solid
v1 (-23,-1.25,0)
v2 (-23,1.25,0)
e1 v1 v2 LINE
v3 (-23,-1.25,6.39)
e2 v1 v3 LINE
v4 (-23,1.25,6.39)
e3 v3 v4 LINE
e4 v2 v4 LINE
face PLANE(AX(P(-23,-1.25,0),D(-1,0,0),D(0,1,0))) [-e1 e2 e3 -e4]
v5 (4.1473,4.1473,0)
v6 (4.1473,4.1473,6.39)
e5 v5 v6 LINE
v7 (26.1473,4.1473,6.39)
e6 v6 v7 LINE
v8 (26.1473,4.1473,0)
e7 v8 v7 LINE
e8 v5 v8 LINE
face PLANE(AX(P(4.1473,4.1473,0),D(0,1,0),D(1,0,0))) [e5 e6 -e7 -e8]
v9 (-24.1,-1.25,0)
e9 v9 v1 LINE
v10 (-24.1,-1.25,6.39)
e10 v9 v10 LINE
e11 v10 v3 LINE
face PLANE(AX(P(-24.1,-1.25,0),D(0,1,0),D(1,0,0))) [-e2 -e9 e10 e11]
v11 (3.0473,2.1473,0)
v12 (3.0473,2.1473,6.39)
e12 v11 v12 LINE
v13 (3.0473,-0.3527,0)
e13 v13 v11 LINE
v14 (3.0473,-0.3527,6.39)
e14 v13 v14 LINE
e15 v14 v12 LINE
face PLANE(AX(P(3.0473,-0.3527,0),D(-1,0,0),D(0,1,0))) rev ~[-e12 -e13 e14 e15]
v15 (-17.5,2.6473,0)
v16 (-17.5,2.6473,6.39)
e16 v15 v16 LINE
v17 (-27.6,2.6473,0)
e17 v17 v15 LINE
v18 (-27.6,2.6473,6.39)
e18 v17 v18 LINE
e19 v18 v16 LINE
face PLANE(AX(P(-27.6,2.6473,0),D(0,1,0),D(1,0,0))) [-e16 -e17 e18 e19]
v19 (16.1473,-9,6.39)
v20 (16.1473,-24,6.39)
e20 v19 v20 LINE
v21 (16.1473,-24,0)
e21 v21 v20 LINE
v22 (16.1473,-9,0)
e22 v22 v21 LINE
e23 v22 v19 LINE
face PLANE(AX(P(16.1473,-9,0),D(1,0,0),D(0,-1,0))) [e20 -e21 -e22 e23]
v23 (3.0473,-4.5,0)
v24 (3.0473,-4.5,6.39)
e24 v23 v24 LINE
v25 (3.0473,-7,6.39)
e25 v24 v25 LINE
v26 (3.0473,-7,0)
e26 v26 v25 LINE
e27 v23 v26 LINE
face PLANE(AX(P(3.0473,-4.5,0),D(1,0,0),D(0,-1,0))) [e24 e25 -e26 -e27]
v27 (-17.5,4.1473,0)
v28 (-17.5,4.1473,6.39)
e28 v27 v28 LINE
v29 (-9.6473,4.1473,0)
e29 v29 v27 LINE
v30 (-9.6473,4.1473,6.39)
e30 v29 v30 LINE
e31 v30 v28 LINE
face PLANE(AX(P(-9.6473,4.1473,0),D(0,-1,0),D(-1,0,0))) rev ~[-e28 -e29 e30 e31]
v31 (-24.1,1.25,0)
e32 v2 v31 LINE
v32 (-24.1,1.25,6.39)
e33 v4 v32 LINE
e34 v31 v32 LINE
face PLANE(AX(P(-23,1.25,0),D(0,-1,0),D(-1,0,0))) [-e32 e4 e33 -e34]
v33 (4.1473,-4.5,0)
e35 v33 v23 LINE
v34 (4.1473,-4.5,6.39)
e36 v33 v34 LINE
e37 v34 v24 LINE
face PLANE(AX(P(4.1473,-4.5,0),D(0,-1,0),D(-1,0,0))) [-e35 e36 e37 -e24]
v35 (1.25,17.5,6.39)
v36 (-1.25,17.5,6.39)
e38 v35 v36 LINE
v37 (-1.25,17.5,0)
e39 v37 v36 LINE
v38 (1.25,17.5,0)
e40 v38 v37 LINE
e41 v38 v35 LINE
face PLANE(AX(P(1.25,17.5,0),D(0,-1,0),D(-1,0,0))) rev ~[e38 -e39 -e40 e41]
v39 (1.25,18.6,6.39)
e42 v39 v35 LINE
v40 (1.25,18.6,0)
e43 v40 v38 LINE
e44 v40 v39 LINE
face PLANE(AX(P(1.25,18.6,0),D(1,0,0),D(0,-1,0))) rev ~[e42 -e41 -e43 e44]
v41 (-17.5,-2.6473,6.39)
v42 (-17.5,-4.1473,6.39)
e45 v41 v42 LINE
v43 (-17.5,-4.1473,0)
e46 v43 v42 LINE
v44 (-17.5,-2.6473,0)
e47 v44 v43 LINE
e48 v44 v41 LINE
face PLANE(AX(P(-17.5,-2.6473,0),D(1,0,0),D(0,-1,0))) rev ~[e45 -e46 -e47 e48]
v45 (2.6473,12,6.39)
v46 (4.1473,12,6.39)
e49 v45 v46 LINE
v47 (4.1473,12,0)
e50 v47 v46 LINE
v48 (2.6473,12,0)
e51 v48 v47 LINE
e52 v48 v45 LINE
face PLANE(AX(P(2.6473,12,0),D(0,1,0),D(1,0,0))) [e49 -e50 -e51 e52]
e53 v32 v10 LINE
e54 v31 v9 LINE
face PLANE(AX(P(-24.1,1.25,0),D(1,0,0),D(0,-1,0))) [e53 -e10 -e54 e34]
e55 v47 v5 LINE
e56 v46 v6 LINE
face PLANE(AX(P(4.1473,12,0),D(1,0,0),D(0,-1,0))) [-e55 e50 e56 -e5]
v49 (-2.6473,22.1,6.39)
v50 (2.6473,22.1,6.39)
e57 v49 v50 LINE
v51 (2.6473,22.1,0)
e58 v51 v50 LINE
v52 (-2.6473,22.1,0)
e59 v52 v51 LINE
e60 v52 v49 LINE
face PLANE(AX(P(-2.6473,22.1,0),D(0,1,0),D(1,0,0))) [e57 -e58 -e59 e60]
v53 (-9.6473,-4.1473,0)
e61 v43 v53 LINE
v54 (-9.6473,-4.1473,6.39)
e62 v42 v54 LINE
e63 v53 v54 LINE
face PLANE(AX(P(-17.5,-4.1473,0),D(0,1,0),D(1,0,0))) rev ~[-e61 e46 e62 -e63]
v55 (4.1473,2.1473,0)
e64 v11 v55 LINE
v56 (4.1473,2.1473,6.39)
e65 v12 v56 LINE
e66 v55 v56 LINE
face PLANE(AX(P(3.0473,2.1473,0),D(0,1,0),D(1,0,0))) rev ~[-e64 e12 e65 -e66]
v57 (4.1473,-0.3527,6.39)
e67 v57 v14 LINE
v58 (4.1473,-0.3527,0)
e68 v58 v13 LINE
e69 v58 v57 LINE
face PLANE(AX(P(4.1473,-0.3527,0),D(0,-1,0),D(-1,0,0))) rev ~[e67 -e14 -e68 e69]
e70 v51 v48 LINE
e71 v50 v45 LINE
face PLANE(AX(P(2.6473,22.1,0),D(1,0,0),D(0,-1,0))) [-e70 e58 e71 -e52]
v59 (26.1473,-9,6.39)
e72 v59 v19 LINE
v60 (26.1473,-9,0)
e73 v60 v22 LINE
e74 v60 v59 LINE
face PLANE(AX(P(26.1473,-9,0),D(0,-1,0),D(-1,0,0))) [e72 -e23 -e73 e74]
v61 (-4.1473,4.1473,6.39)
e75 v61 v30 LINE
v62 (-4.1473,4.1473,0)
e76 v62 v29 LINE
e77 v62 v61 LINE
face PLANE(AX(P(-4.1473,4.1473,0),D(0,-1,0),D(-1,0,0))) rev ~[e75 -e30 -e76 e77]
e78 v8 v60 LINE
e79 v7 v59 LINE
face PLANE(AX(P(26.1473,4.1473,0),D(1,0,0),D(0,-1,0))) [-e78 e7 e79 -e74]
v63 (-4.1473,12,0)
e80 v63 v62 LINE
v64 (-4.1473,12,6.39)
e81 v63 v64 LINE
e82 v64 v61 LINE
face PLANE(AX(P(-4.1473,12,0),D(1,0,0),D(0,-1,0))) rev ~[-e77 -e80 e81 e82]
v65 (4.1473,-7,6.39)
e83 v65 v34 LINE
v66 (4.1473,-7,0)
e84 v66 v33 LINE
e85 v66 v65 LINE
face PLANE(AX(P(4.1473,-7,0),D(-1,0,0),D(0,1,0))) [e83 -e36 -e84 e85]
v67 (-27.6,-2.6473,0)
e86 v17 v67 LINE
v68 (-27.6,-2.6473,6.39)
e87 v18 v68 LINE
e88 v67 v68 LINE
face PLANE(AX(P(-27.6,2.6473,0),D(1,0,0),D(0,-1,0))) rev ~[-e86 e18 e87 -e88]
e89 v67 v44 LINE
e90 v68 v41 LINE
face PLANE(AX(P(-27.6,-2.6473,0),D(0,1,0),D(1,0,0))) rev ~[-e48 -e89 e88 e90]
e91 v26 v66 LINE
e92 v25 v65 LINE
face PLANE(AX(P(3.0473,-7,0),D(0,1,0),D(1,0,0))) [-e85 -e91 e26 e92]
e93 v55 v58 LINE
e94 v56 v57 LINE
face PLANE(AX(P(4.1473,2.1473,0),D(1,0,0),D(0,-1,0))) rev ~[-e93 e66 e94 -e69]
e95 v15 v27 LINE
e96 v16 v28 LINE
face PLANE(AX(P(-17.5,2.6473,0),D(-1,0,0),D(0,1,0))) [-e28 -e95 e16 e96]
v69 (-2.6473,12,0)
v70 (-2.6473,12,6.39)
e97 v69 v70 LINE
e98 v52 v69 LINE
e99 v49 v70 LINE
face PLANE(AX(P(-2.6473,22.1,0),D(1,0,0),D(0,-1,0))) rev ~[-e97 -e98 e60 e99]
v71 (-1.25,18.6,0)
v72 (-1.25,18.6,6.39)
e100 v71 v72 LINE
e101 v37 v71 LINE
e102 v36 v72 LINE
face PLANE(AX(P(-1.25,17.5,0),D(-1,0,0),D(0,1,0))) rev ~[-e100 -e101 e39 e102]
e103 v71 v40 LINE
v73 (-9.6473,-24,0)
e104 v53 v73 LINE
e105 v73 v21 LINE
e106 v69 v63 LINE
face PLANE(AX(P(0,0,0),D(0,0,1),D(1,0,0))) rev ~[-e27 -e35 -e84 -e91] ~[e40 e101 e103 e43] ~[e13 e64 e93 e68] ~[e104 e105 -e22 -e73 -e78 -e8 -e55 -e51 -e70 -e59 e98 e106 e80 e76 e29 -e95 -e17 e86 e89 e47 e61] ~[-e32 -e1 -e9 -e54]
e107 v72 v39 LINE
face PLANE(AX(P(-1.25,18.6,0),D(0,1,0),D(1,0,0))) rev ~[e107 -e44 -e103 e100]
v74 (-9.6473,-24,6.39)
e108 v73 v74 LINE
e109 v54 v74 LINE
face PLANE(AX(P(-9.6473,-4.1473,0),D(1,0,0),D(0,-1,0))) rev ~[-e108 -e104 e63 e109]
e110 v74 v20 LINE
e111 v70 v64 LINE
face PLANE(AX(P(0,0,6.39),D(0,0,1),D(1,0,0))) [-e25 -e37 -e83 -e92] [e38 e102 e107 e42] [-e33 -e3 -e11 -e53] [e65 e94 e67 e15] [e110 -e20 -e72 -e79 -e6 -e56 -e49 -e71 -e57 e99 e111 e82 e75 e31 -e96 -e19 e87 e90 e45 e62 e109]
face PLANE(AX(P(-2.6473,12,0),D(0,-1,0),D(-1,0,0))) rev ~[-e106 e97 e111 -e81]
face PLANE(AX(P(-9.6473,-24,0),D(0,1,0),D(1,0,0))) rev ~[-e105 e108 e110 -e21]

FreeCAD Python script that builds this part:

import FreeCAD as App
import Part
import Sketcher
from FreeCAD import Vector
Q = App.Units.Quantity

doc = App.newDocument("Part")
params = doc.addObject("Spreadsheet::Sheet", "Params")
for row, (alias, value) in enumerate([
    ("sketch1_width", "10 mm"),
    ("sketch1_height", "15 mm"),
    ("sketch1_width2", "1.5 mm"),
    ("sketch1_width3", "10.1 mm"),
    ("sketch1_width4", "1.1 mm"),
    ("pad1_length", "6.39 mm"),
], start=1):
    params.set(f"A{row}", alias)
    params.set(f"B{row}", "=" + value)
    params.setAlias(f"B{row}", alias)

body = doc.addObject("PartDesign::Body", "Body")

sketch1 = body.newObject("Sketcher::SketchObject", "Sketch")
sketch1.AttachmentSupport = (doc.getObject("XY_Plane"), [""])
sketch1.MapMode = "FlatFace"
sketch1.addGeometry([
    Part.LineSegment(Vector(2.6, 22.1, 0), Vector(-2.6, 22.1, 0)),
    Part.LineSegment(Vector(-2.6, 22.1, 0), Vector(-2.6, 12, 0)),
    Part.LineSegment(Vector(-2.6, 12, 0), Vector(-4.1, 12, 0)),
    Part.LineSegment(Vector(-4.1, 12, 0), Vector(-4.1, 4.1, 0)),
    Part.LineSegment(Vector(-4.1, 4.1, 0), Vector(-17.5, 4.1, 0)),
    Part.LineSegment(Vector(-17.5, 4.1, 0), Vector(-17.5, 2.6, 0)),
    Part.LineSegment(Vector(-17.5, 2.6, 0), Vector(-27.6, 2.6, 0)),
    Part.LineSegment(Vector(-27.6, 2.6, 0), Vector(-27.6, -2.6, 0)),
    Part.LineSegment(Vector(-27.6, -2.6, 0), Vector(-17.5, -2.6, 0)),
    Part.LineSegment(Vector(-17.5, -2.6, 0), Vector(-17.5, -4.1, 0)),
    Part.LineSegment(Vector(-17.5, -4.1, 0), Vector(-9.6, -4.1, 0)),
    Part.LineSegment(Vector(-9.6, -4.1, 0), Vector(-9.6, -24, 0)),
    Part.LineSegment(Vector(-9.6, -24, 0), Vector(16.1, -24, 0)),
    Part.LineSegment(Vector(16.1, -24, 0), Vector(16.1, -9, 0)),
    Part.LineSegment(Vector(16.1, -9, 0), Vector(26.1, -9, 0)),
    Part.LineSegment(Vector(26.1, -9, 0), Vector(26.1, 4.1, 0)),
    Part.LineSegment(Vector(26.1, 4.1, 0), Vector(4.1, 4.1, 0)),
    Part.LineSegment(Vector(4.1, 4.1, 0), Vector(4.1, 12, 0)),
    Part.LineSegment(Vector(4.1, 12, 0), Vector(2.6, 12, 0)),
    Part.LineSegment(Vector(2.6, 12, 0), Vector(2.6, 22.1, 0)),
    Part.LineSegment(Vector(4.1, -7, 0), Vector(3, -7, 0)),
    Part.LineSegment(Vector(3, -7, 0), Vector(3, -4.5, 0)),
    Part.LineSegment(Vector(3, -4.5, 0), Vector(4.1, -4.5, 0)),
    Part.LineSegment(Vector(4.1, -4.5, 0), Vector(4.1, -7, 0)),
    Part.LineSegment(Vector(-24.1, -1.2, 0), Vector(-24.1, 1.2, 0)),
    Part.LineSegment(Vector(-24.1, 1.2, 0), Vector(-23, 1.2, 0)),
    Part.LineSegment(Vector(-23, 1.2, 0), Vector(-23, -1.2, 0)),
    Part.LineSegment(Vector(-23, -1.2, 0), Vector(-24.1, -1.2, 0)),
    Part.LineSegment(Vector(3, -0.4, 0), Vector(3, 2.1, 0)),
    Part.LineSegment(Vector(3, 2.1, 0), Vector(4.1, 2.1, 0)),
    Part.LineSegment(Vector(4.1, 2.1, 0), Vector(4.1, -0.4, 0)),
    Part.LineSegment(Vector(4.1, -0.4, 0), Vector(3, -0.4, 0)),
    Part.LineSegment(Vector(-1.2, 17.5, 0), Vector(-1.2, 18.6, 0)),
    Part.LineSegment(Vector(-1.2, 18.6, 0), Vector(1.2, 18.6, 0)),
    Part.LineSegment(Vector(1.2, 18.6, 0), Vector(1.2, 17.5, 0)),
    Part.LineSegment(Vector(1.2, 17.5, 0), Vector(-1.2, 17.5, 0)),
], False)
sketch1.addConstraint([
    Sketcher.Constraint("Coincident", 0, 2, 1, 1),
    Sketcher.Constraint("Coincident", 1, 2, 2, 1),
    Sketcher.Constraint("Coincident", 2, 2, 3, 1),
    Sketcher.Constraint("Coincident", 3, 2, 4, 1),
    Sketcher.Constraint("Coincident", 4, 2, 5, 1),
    Sketcher.Constraint("Coincident", 5, 2, 6, 1),
    Sketcher.Constraint("Coincident", 6, 2, 7, 1),
    Sketcher.Constraint("Coincident", 7, 2, 8, 1),
    Sketcher.Constraint("Coincident", 8, 2, 9, 1),
    Sketcher.Constraint("Coincident", 9, 2, 10, 1),
    Sketcher.Constraint("Coincident", 10, 2, 11, 1),
    Sketcher.Constraint("Coincident", 11, 2, 12, 1),
    Sketcher.Constraint("Coincident", 12, 2, 13, 1),
    Sketcher.Constraint("Coincident", 13, 2, 14, 1),
    Sketcher.Constraint("Coincident", 14, 2, 15, 1),
    Sketcher.Constraint("Coincident", 15, 2, 16, 1),
    Sketcher.Constraint("Coincident", 16, 2, 17, 1),
    Sketcher.Constraint("Coincident", 17, 2, 18, 1),
    Sketcher.Constraint("Coincident", 18, 2, 19, 1),
    Sketcher.Constraint("Coincident", 19, 2, 0, 1),
    Sketcher.Constraint("Coincident", 20, 2, 21, 1),
    Sketcher.Constraint("Coincident", 21, 2, 22, 1),
    Sketcher.Constraint("Coincident", 22, 2, 23, 1),
    Sketcher.Constraint("Coincident", 23, 2, 20, 1),
    Sketcher.Constraint("Coincident", 24, 2, 25, 1),
    Sketcher.Constraint("Coincident", 25, 2, 26, 1),
    Sketcher.Constraint("Coincident", 26, 2, 27, 1),
    Sketcher.Constraint("Coincident", 27, 2, 24, 1),
    Sketcher.Constraint("Coincident", 28, 2, 29, 1),
    Sketcher.Constraint("Coincident", 29, 2, 30, 1),
    Sketcher.Constraint("Coincident", 30, 2, 31, 1),
    Sketcher.Constraint("Coincident", 31, 2, 28, 1),
    Sketcher.Constraint("Coincident", 32, 2, 33, 1),
    Sketcher.Constraint("Coincident", 33, 2, 34, 1),
    Sketcher.Constraint("Coincident", 34, 2, 35, 1),
    Sketcher.Constraint("Coincident", 35, 2, 32, 1),
    Sketcher.Constraint("Horizontal", 0),
    Sketcher.Constraint("Vertical", 1),
    Sketcher.Constraint("Horizontal", 2),
    Sketcher.Constraint("Vertical", 3),
    Sketcher.Constraint("Horizontal", 4),
    Sketcher.Constraint("Vertical", 5),
    Sketcher.Constraint("Horizontal", 6),
    Sketcher.Constraint("Vertical", 7),
    Sketcher.Constraint("Horizontal", 8),
    Sketcher.Constraint("Vertical", 9),
    Sketcher.Constraint("Horizontal", 10),
    Sketcher.Constraint("Vertical", 11),
    Sketcher.Constraint("Horizontal", 12),
    Sketcher.Constraint("Vertical", 13),
    Sketcher.Constraint("Horizontal", 14),
    Sketcher.Constraint("Vertical", 15),
    Sketcher.Constraint("Horizontal", 16),
    Sketcher.Constraint("Vertical", 17),
    Sketcher.Constraint("Horizontal", 18),
    Sketcher.Constraint("Vertical", 19),
    Sketcher.Constraint("Horizontal", 20),
    Sketcher.Constraint("Vertical", 21),
    Sketcher.Constraint("Horizontal", 22),
    Sketcher.Constraint("Vertical", 23),
    Sketcher.Constraint("Vertical", 24),
    Sketcher.Constraint("Horizontal", 25),
    Sketcher.Constraint("Vertical", 26),
    Sketcher.Constraint("Horizontal", 27),
    Sketcher.Constraint("Vertical", 28),
    Sketcher.Constraint("Horizontal", 29),
    Sketcher.Constraint("Vertical", 30),
    Sketcher.Constraint("Horizontal", 31),
    Sketcher.Constraint("Vertical", 32),
    Sketcher.Constraint("Horizontal", 33),
    Sketcher.Constraint("Vertical", 34),
    Sketcher.Constraint("Horizontal", 35),
    Sketcher.Constraint("Symmetric", 3, 2, 16, 2, -2),
    Sketcher.Constraint("Symmetric", 1, 2, 18, 2, -2),
    Sketcher.Constraint("Symmetric", 5, 2, 8, 2, -1),
    Sketcher.Constraint("Vertical", 17, 2, 22, 2),
    Sketcher.Constraint("Vertical", 21, 2, 28, 2),
    Sketcher.Constraint("Vertical", 23, 2, 29, 2),
    Sketcher.Constraint("Equal", 22, 25),
    Sketcher.Constraint("Equal", 8, 1),
    Sketcher.Constraint("Equal", 10, 3),
    Sketcher.Constraint("Equal", 18, 5),
    Sketcher.Constraint("Equal", 0, 7),
    Sketcher.Constraint("Equal", 5, 9),
    Sketcher.Constraint("Equal", 35, 21),
    Sketcher.Constraint("Equal", 23, 24),
    Sketcher.Constraint("Equal", 26, 28),
    Sketcher.Constraint("Equal", 31, 32),
    Sketcher.Constraint("DistanceX", 14, 1, 14, 2, Q("10 mm")),
    Sketcher.Constraint("DistanceY", 13, 1, 13, 2, Q("15 mm")),
    Sketcher.Constraint("DistanceX", 2, 2, 2, 1, Q("1.5 mm")),
    Sketcher.Constraint("DistanceX", 6, 2, 6, 1, Q("10.1 mm")),
    Sketcher.Constraint("DistanceX", 20, 2, 20, 1, Q("1.1 mm")),
    Sketcher.Constraint("DistanceX", 33, 1, 33, 2, Q("2.5 mm")),
    Sketcher.Constraint("DistanceY", -1, 1, 1, 2, Q("12 mm")),
    Sketcher.Constraint("DistanceX", 16, 2, 13, 2, Q("12 mm")),
    Sketcher.Constraint("DistanceY", 13, 2, 20, 2, Q("2 mm")),
    Sketcher.Constraint("DistanceY", 28, 2, 16, 2, Q("2 mm")),
    Sketcher.Constraint("DistanceX", 4, 2, -1, 1, Q("17.5 mm")),
    Sketcher.Constraint("DistanceY", -1, 1, 34, 2, Q("17.5 mm")),
    Sketcher.Constraint("DistanceX", 25, 2, 5, 2, Q("5.5 mm")),
    Sketcher.Constraint("DistanceX", 0, 2, 0, 1, Q("5.2946 mm")),
    Sketcher.Constraint("DistanceY", 15, 1, 15, 2, Q("13.1473 mm")),
    Sketcher.Constraint("DistanceY", -1, 1, 24, 2, Q("1.25 mm")),
    Sketcher.Constraint("DistanceX", 32, 2, -1, 1, Q("1.25 mm")),
])
sketch1.setExpression("Constraints[88]", "Params.sketch1_width")
sketch1.setExpression("Constraints[89]", "Params.sketch1_height")
sketch1.setExpression("Constraints[90]", "Params.sketch1_width2")
sketch1.setExpression("Constraints[91]", "Params.sketch1_width3")
sketch1.setExpression("Constraints[92]", "Params.sketch1_width4")
pad1 = body.newObject("PartDesign::Pad", "Pad")
pad1.Profile = sketch1
pad1.setExpression("Length", "Params.pad1_length")

doc.recompute()
